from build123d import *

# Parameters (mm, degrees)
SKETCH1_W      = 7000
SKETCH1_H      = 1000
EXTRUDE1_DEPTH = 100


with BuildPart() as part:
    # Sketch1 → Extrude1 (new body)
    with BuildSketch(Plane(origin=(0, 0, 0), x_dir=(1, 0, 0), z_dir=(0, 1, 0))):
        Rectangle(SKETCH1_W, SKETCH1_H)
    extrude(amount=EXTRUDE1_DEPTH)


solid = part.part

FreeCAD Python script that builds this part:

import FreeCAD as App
import Part
import Sketcher
from FreeCAD import Vector


def add_polygon(sketch, points):
    """Adds a closed chain of lines whose ends are joined by coincident constraints."""
    first, n = sketch.GeometryCount, len(points)
    for a, b in zip(points, points[1:] + points[:1]):
        sketch.addGeometry(Part.LineSegment(App.Vector(*a, 0), App.Vector(*b, 0)), False)
    for i in range(n):
        sketch.addConstraint(Sketcher.Constraint("Coincident", first + i, 2, first + (i + 1) % n, 1))

doc = App.newDocument("Part")
body = doc.addObject("PartDesign::Body", "Body")

sketch1 = body.newObject("Sketcher::SketchObject", "Sketch")
sketch1.AttachmentSupport = (doc.getObject("XZ_Plane"), [""])
sketch1.MapMode = "FlatFace"
add_polygon(sketch1, [(-3500, -500), (-3500, 500), (3500, 500), (3500, -500)])
sketch1.addConstraint([
    Sketcher.Constraint("Vertical", 0),
    Sketcher.Constraint("Horizontal", 1),
    Sketcher.Constraint("Vertical", 2),
    Sketcher.Constraint("Horizontal", 3),
    Sketcher.Constraint("Symmetric", 0, 2, 2, 2, -1, 1),
    Sketcher.Constraint("DistanceX", 1, 1, 1, 2, 7000.0),
    Sketcher.Constraint("DistanceY", 0, 1, 0, 2, 1000.0),
])
pad1 = body.newObject("PartDesign::Pad", "Pad")
pad1.Profile = sketch1
pad1.Length = 100
pad1.Reversed = True

doc.recompute()
